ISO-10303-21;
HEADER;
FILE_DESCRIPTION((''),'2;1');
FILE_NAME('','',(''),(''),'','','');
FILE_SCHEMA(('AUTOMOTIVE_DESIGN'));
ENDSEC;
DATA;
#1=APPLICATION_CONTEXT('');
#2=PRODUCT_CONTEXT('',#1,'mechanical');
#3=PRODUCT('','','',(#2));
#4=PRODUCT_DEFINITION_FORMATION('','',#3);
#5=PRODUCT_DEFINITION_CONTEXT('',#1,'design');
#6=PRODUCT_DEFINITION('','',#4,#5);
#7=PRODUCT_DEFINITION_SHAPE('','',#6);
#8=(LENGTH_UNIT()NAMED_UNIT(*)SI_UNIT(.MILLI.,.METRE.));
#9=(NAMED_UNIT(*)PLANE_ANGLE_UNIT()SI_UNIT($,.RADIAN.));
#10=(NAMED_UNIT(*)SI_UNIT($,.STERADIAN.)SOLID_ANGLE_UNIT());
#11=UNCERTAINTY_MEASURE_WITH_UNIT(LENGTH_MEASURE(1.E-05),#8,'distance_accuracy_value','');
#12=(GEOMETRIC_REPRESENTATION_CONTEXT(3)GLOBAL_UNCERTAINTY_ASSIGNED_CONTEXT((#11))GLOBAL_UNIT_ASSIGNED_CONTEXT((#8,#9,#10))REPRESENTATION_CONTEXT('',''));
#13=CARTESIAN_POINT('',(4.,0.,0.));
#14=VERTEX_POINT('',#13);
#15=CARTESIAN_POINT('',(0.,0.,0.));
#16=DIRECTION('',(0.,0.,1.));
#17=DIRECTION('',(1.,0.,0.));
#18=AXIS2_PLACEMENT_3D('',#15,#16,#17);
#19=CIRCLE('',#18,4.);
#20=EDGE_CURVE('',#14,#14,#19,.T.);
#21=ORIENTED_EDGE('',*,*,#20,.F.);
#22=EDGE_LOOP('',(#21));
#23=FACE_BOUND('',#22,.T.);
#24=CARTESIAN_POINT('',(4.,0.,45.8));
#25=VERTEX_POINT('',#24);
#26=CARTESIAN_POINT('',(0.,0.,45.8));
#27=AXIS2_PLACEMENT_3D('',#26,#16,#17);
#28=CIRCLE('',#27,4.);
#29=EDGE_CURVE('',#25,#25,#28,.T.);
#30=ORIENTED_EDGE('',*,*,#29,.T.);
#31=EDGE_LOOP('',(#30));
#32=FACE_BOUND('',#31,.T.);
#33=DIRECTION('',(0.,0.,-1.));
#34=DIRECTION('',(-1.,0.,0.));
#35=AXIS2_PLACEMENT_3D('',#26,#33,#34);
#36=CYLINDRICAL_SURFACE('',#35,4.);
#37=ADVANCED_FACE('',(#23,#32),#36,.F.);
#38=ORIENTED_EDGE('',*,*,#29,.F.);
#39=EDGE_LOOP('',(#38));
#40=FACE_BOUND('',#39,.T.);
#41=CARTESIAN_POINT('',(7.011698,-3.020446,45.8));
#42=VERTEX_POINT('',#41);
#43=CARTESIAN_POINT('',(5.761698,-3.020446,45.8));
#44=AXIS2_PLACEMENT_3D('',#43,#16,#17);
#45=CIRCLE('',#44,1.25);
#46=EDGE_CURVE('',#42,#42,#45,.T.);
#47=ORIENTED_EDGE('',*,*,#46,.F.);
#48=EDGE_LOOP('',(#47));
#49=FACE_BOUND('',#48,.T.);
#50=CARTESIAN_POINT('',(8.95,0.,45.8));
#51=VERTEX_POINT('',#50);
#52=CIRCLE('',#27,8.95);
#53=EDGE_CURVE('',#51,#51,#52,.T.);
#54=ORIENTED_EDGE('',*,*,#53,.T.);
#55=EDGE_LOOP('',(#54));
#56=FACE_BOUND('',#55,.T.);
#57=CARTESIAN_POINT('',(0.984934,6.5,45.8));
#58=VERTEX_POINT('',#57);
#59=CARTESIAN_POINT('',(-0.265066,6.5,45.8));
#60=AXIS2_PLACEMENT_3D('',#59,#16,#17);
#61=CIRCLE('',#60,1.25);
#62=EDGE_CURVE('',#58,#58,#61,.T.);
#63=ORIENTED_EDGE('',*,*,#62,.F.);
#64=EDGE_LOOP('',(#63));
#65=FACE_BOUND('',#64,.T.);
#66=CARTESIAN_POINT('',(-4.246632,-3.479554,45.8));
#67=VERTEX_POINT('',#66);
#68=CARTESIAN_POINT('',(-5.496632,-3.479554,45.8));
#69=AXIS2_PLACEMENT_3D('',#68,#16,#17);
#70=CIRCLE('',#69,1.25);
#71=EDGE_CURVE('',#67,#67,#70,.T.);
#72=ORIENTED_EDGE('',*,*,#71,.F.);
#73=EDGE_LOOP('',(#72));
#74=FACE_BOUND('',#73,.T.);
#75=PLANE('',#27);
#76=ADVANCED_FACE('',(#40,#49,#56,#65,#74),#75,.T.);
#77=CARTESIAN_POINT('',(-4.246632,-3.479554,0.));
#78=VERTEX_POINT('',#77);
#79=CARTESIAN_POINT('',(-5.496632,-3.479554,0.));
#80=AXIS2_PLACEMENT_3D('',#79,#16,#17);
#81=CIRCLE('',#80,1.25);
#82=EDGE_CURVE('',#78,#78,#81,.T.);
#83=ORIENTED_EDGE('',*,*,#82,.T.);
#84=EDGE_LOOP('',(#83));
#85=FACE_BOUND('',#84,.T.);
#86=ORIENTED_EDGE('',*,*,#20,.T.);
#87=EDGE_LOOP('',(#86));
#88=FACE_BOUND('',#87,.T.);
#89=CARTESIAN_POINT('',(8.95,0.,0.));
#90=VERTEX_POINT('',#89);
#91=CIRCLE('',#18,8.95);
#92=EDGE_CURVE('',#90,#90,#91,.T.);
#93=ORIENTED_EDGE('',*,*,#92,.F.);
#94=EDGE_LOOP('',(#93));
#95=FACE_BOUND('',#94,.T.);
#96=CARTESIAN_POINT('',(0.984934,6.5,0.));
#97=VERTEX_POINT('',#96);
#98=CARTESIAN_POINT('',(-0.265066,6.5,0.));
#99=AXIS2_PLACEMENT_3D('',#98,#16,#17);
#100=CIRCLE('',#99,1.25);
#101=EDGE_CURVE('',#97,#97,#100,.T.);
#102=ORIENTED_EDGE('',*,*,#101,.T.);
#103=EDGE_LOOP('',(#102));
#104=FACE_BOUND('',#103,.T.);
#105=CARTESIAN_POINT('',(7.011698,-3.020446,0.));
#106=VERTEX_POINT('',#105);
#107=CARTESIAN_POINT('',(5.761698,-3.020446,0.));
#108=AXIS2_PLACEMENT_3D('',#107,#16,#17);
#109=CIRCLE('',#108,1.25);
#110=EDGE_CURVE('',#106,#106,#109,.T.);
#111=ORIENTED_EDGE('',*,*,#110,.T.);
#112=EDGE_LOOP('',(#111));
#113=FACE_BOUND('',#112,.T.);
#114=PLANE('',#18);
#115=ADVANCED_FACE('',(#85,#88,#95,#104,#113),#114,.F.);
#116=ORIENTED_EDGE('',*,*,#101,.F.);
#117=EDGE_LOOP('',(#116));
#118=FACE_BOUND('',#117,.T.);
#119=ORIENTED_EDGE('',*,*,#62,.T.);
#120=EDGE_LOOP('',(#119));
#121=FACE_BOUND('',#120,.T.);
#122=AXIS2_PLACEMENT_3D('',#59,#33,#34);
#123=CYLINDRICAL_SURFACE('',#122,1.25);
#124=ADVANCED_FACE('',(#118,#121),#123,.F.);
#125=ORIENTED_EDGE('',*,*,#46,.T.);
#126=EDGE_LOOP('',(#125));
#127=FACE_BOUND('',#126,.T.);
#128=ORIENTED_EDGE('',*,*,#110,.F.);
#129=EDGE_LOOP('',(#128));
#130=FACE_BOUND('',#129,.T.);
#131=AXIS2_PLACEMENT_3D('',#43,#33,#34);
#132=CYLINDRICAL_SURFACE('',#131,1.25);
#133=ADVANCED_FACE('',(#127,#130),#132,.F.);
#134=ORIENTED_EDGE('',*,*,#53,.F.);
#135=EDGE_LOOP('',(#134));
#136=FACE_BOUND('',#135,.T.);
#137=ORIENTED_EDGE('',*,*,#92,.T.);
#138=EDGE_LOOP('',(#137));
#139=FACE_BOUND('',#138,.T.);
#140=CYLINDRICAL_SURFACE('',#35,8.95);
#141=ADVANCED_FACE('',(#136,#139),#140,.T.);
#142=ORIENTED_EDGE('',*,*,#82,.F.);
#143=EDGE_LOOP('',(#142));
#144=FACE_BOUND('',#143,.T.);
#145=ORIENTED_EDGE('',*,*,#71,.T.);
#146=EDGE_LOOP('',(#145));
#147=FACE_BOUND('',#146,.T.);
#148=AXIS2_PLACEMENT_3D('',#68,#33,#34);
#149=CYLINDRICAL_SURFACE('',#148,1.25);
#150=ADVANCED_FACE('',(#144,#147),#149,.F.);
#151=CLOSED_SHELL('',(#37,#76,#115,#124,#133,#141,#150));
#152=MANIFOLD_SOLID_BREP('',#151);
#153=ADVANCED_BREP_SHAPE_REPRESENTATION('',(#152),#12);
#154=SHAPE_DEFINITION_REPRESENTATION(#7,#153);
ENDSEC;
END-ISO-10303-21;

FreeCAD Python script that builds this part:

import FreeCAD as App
import Part
import Sketcher

V = App.Vector
Q = App.Units.Quantity

doc = App.newDocument("Part")
body = doc.addObject("PartDesign::Body", "Body")

sketch1 = body.newObject("Sketcher::SketchObject", "Sketch")
sketch1.AttachmentSupport = (doc.getObject("XY_Plane"), [""])
sketch1.MapMode = "FlatFace"
sketch1.addGeometry([
    Part.Circle(V(0, 0, 0), V(0, 0, 1), 8.9),
    Part.Circle(V(-5.5, -3.5, 0), V(0, 0, 1), 1.2),
    Part.Circle(V(0, 0, 0), V(0, 0, 1), 4),
    Part.Circle(V(5.8, -3, 0), V(0, 0, 1), 1.2),
    Part.Circle(V(-0.3, 6.5, 0), V(0, 0, 1), 1.2),
], False)
sketch1.addConstraint([
    Sketcher.Constraint("Coincident", 0, 3, -1, 1),
    Sketcher.Constraint("Coincident", 2, 3, -1, 1),
    Sketcher.Constraint("Equal", 1, 3),
    Sketcher.Constraint("Equal", 3, 4),
    Sketcher.Constraint("Diameter", 2, Q("8 mm")),
    Sketcher.Constraint("Diameter", 0, Q("17.9 mm")),
    Sketcher.Constraint("Diameter", 1, Q("2.5 mm")),
    Sketcher.Constraint("DistanceY", -1, 1, 4, 3, Q("6.5 mm")),
    Sketcher.Constraint("DistanceX", 1, 3, 3, 3, Q("11.25833 mm")),
    Sketcher.Constraint("DistanceX", 1, 3, -1, 1, Q("5.496632 mm")),
    Sketcher.Constraint("DistanceY", 1, 3, -1, 1, Q("3.479554 mm")),
    Sketcher.Constraint("DistanceY", 3, 3, -1, 1, Q("3.020446 mm")),
    Sketcher.Constraint("DistanceX", 4, 3, -1, 1, Q("0.265066 mm")),
])
pad1 = body.newObject("PartDesign::Pad", "Pad")
pad1.Profile = sketch1
pad1.Length = 45.8

doc.recompute()
